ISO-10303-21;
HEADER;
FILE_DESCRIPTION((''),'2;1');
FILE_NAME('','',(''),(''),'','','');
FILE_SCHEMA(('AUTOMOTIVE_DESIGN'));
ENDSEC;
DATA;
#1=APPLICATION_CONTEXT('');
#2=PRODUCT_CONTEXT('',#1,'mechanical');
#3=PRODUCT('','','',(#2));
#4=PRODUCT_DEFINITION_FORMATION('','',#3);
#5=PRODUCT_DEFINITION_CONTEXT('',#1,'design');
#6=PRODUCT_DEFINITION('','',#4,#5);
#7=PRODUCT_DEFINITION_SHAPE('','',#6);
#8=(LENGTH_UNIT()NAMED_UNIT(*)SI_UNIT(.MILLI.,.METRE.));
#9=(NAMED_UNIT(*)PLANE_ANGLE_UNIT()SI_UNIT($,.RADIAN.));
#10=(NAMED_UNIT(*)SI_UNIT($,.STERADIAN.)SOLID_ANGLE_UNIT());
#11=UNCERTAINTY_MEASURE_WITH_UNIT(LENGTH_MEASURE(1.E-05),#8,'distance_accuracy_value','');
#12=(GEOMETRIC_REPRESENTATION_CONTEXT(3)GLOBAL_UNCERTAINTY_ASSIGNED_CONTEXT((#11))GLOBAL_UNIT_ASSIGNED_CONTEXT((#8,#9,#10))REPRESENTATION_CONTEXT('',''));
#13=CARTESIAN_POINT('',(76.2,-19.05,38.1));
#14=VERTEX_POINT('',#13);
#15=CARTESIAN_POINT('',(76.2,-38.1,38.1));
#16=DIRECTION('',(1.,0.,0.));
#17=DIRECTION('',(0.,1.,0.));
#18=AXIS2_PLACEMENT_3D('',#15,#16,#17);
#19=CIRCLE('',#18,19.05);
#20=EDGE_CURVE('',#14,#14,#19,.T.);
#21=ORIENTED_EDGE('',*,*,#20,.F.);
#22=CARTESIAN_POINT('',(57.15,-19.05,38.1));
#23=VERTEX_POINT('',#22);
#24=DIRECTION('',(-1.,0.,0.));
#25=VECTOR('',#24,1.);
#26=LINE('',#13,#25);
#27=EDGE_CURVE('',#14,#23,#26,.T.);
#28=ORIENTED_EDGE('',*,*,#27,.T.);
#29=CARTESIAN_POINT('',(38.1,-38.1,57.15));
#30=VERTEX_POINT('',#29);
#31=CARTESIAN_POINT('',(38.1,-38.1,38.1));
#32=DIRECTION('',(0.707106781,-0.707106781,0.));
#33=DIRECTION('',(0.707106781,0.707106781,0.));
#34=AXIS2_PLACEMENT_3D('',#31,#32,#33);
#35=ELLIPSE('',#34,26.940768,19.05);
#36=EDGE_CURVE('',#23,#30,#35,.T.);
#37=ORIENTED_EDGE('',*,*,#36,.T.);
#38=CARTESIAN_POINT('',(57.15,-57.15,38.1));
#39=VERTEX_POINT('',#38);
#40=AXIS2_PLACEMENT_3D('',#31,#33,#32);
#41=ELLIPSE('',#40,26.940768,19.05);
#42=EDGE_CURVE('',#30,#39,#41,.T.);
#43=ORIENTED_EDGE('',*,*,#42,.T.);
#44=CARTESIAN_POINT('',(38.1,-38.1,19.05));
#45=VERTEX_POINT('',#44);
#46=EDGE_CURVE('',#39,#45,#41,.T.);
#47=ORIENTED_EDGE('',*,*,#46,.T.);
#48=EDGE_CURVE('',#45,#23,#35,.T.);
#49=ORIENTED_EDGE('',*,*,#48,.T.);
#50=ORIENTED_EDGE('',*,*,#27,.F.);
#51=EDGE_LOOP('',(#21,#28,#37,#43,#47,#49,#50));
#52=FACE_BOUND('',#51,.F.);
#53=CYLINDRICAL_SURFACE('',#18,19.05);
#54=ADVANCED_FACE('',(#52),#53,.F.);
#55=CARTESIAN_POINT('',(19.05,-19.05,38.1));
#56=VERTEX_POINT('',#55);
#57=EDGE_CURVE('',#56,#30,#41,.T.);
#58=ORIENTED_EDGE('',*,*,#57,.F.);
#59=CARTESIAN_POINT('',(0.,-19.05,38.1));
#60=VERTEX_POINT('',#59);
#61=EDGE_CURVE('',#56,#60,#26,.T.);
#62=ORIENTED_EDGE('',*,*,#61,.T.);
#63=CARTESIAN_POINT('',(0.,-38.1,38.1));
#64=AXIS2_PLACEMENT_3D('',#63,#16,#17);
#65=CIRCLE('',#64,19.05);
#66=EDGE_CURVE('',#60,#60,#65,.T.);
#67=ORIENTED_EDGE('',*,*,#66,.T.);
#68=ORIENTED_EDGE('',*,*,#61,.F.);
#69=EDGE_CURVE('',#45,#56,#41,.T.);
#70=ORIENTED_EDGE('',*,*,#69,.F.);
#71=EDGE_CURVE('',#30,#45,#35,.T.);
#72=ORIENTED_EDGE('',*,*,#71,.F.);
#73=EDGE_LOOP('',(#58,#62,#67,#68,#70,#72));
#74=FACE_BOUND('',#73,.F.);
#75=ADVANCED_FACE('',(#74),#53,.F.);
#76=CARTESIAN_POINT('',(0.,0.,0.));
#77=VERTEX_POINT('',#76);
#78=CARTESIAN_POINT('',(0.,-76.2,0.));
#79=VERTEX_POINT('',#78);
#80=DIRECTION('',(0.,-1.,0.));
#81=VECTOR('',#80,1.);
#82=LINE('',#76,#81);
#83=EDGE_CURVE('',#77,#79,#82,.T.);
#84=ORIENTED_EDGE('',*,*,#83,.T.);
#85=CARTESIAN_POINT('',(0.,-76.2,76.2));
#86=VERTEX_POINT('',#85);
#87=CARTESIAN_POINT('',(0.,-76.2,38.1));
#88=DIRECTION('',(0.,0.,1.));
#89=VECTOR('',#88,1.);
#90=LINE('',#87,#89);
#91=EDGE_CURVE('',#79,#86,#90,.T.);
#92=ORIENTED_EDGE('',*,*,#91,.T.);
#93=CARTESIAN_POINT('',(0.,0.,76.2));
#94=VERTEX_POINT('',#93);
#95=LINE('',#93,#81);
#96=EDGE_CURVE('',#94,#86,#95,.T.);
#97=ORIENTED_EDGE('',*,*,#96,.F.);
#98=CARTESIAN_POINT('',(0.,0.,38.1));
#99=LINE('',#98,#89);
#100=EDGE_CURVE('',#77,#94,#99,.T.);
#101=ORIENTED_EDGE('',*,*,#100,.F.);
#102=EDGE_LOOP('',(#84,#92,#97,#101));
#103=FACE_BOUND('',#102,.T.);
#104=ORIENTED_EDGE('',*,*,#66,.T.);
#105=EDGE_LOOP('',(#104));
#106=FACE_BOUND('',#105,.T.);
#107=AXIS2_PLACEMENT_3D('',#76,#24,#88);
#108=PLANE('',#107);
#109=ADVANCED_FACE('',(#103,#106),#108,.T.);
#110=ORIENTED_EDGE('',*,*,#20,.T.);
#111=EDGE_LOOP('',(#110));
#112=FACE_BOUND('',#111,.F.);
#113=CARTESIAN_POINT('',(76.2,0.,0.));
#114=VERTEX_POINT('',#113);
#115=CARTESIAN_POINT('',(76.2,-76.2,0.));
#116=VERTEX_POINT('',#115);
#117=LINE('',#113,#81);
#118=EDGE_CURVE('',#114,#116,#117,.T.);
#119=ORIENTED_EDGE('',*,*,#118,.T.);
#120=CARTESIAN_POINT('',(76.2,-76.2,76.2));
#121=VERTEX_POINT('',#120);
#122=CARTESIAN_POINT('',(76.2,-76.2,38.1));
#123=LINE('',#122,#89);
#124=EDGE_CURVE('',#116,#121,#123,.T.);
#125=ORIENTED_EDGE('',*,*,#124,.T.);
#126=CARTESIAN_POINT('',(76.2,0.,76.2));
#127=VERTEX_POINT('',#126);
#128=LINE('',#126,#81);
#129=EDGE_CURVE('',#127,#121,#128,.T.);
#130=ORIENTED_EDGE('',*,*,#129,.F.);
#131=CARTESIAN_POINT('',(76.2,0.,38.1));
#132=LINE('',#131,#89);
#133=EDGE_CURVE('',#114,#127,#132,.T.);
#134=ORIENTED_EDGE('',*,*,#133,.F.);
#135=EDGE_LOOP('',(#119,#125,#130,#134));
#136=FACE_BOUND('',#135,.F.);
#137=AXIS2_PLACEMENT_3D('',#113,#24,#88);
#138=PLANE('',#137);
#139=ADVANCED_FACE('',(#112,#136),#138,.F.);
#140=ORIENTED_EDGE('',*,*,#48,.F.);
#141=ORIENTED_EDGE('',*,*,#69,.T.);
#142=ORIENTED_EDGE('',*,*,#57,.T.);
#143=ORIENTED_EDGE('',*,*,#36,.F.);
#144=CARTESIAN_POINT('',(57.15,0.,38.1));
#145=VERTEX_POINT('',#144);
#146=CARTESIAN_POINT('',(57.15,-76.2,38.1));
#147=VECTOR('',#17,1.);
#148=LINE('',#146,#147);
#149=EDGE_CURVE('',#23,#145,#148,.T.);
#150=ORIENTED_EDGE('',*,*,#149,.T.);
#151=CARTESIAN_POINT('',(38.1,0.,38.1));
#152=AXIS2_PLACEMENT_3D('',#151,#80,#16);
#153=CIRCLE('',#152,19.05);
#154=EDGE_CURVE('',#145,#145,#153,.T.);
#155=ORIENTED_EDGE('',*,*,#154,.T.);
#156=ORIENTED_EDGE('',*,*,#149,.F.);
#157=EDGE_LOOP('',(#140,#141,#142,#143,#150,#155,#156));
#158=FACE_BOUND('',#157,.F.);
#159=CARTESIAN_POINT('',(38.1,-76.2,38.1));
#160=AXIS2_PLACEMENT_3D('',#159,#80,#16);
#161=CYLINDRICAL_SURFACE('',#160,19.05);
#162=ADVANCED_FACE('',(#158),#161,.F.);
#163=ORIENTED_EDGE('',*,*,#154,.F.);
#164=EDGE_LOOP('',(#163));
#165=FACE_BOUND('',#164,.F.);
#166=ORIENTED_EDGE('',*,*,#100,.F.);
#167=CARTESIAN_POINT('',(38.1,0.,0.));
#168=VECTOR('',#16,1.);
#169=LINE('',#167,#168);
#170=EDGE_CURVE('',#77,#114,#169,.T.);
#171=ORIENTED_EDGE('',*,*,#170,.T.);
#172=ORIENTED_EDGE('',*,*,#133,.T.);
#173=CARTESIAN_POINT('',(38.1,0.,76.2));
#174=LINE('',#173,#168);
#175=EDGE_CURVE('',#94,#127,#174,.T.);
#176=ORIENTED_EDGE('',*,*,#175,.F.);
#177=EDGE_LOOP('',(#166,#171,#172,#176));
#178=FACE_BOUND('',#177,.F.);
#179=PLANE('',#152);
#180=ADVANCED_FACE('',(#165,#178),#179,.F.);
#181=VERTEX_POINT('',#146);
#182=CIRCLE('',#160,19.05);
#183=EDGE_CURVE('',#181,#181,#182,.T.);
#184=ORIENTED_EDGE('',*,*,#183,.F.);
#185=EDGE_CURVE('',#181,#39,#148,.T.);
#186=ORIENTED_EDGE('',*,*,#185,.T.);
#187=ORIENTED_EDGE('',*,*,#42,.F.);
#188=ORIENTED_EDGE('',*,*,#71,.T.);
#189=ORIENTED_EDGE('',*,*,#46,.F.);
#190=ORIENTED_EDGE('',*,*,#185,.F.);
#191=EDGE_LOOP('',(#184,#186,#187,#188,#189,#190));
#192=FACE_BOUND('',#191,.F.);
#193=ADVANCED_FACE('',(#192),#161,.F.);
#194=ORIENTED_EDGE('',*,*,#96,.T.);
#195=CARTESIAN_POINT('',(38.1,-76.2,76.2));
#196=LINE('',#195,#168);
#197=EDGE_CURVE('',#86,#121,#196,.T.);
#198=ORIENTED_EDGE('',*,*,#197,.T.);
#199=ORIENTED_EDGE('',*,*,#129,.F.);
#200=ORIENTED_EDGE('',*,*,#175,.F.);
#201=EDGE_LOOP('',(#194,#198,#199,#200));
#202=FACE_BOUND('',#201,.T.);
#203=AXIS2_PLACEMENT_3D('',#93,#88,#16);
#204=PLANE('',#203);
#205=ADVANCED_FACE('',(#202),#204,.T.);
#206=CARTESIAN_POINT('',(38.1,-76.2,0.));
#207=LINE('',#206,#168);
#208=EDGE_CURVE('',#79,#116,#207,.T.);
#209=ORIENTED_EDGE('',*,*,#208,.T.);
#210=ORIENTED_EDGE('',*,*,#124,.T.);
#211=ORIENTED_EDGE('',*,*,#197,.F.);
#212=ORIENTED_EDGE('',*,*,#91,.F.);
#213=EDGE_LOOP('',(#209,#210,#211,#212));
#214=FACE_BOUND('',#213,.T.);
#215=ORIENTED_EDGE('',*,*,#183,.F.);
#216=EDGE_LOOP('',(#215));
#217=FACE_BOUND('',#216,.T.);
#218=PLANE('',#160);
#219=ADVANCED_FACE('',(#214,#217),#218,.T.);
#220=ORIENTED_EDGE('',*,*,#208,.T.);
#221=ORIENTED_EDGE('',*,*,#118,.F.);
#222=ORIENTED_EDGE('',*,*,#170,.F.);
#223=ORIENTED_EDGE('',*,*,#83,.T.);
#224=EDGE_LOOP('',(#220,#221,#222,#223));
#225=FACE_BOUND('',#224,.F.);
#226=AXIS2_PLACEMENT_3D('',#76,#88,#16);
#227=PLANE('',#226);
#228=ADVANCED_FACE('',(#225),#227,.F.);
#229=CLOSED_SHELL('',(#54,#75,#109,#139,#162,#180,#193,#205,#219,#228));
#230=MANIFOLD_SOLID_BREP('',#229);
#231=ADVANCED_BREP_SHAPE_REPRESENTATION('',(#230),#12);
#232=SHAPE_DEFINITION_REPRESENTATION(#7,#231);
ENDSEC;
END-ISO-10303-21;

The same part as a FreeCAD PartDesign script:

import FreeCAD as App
import Part
import Sketcher

V = App.Vector
Q = App.Units.Quantity


def add_polygon(sketch, points):
    """Adds a closed chain of lines whose ends are joined by coincident constraints."""
    first, n = sketch.GeometryCount, len(points)
    for a, b in zip(points, points[1:] + points[:1]):
        sketch.addGeometry(Part.LineSegment(App.Vector(*a, 0), App.Vector(*b, 0)), False)
    for i in range(n):
        sketch.addConstraint(Sketcher.Constraint("Coincident", first + i, 2, first + (i + 1) % n, 1))

doc = App.newDocument("Part")
body = doc.addObject("PartDesign::Body", "Body")

# Sketch on XZ plane
sketch1 = body.newObject("Sketcher::SketchObject", "Sketch")
sketch1.AttachmentSupport = (doc.getObject("XZ_Plane"), [""])
sketch1.MapMode = "FlatFace"
add_polygon(sketch1, [(0, 76), (0, 0), (76, 0), (76, 76)])  # lines 0-3
sketch1.addConstraint([
    Sketcher.Constraint("Vertical", 0),
    Sketcher.Constraint("Horizontal", 1),
    Sketcher.Constraint("Vertical", 2),
    Sketcher.Constraint("Horizontal", 3),
    Sketcher.Constraint("Coincident", 0, 2, -1, 1),
    Sketcher.Constraint("Equal", 3, 0),
    Sketcher.Constraint("DistanceX", 1, 1, 1, 2, Q("3 in")),
])
pad1 = body.newObject("PartDesign::Pad", "Pad")
pad1.Profile = sketch1
pad1.Length = Q("3 in")

# Sketch on YZ plane
sketch2 = body.newObject("Sketcher::SketchObject", "Sketch001")
sketch2.AttachmentSupport = (doc.getObject("YZ_Plane"), [""])
sketch2.MapMode = "FlatFace"
sketch2.AttachmentOffset = App.Placement(V(0, 0, 3 * 25.4), App.Rotation())
sketch2.addGeometry(Part.Circle(V(-38, 38, 0), V(0, 0, 1), 19), False)
sketch2.addConstraint([
    Sketcher.Constraint("Diameter", 0, Q("1.5 in")),
    Sketcher.Constraint("DistanceX", 0, 3, -1, 1, Q("1.5 in")),
    Sketcher.Constraint("DistanceY", -1, 1, 0, 3, Q("1.5 in")),
])
pocket1 = body.newObject("PartDesign::Pocket", "Pocket")
pocket1.Profile = sketch2
pocket1.Type = "ThroughAll"

# Sketch on XZ plane
sketch3 = body.newObject("Sketcher::SketchObject", "Sketch002")
sketch3.AttachmentSupport = (doc.getObject("XZ_Plane"), [""])
sketch3.MapMode = "FlatFace"
sketch3.AttachmentOffset = App.Placement(V(0, 0, 3 * 25.4), App.Rotation())
sketch3.addGeometry(Part.Circle(V(38, 38, 0), V(0, 0, 1), 19), False)
sketch3.addConstraint([
    Sketcher.Constraint("Diameter", 0, Q("1.5 in")),
    Sketcher.Constraint("DistanceX", -1, 1, 0, 3, Q("1.5 in")),
    Sketcher.Constraint("DistanceY", -1, 1, 0, 3, Q("1.5 in")),
])
pocket2 = body.newObject("PartDesign::Pocket", "Pocket001")
pocket2.Profile = sketch3
pocket2.Length = Q("3 in")

doc.recompute()
